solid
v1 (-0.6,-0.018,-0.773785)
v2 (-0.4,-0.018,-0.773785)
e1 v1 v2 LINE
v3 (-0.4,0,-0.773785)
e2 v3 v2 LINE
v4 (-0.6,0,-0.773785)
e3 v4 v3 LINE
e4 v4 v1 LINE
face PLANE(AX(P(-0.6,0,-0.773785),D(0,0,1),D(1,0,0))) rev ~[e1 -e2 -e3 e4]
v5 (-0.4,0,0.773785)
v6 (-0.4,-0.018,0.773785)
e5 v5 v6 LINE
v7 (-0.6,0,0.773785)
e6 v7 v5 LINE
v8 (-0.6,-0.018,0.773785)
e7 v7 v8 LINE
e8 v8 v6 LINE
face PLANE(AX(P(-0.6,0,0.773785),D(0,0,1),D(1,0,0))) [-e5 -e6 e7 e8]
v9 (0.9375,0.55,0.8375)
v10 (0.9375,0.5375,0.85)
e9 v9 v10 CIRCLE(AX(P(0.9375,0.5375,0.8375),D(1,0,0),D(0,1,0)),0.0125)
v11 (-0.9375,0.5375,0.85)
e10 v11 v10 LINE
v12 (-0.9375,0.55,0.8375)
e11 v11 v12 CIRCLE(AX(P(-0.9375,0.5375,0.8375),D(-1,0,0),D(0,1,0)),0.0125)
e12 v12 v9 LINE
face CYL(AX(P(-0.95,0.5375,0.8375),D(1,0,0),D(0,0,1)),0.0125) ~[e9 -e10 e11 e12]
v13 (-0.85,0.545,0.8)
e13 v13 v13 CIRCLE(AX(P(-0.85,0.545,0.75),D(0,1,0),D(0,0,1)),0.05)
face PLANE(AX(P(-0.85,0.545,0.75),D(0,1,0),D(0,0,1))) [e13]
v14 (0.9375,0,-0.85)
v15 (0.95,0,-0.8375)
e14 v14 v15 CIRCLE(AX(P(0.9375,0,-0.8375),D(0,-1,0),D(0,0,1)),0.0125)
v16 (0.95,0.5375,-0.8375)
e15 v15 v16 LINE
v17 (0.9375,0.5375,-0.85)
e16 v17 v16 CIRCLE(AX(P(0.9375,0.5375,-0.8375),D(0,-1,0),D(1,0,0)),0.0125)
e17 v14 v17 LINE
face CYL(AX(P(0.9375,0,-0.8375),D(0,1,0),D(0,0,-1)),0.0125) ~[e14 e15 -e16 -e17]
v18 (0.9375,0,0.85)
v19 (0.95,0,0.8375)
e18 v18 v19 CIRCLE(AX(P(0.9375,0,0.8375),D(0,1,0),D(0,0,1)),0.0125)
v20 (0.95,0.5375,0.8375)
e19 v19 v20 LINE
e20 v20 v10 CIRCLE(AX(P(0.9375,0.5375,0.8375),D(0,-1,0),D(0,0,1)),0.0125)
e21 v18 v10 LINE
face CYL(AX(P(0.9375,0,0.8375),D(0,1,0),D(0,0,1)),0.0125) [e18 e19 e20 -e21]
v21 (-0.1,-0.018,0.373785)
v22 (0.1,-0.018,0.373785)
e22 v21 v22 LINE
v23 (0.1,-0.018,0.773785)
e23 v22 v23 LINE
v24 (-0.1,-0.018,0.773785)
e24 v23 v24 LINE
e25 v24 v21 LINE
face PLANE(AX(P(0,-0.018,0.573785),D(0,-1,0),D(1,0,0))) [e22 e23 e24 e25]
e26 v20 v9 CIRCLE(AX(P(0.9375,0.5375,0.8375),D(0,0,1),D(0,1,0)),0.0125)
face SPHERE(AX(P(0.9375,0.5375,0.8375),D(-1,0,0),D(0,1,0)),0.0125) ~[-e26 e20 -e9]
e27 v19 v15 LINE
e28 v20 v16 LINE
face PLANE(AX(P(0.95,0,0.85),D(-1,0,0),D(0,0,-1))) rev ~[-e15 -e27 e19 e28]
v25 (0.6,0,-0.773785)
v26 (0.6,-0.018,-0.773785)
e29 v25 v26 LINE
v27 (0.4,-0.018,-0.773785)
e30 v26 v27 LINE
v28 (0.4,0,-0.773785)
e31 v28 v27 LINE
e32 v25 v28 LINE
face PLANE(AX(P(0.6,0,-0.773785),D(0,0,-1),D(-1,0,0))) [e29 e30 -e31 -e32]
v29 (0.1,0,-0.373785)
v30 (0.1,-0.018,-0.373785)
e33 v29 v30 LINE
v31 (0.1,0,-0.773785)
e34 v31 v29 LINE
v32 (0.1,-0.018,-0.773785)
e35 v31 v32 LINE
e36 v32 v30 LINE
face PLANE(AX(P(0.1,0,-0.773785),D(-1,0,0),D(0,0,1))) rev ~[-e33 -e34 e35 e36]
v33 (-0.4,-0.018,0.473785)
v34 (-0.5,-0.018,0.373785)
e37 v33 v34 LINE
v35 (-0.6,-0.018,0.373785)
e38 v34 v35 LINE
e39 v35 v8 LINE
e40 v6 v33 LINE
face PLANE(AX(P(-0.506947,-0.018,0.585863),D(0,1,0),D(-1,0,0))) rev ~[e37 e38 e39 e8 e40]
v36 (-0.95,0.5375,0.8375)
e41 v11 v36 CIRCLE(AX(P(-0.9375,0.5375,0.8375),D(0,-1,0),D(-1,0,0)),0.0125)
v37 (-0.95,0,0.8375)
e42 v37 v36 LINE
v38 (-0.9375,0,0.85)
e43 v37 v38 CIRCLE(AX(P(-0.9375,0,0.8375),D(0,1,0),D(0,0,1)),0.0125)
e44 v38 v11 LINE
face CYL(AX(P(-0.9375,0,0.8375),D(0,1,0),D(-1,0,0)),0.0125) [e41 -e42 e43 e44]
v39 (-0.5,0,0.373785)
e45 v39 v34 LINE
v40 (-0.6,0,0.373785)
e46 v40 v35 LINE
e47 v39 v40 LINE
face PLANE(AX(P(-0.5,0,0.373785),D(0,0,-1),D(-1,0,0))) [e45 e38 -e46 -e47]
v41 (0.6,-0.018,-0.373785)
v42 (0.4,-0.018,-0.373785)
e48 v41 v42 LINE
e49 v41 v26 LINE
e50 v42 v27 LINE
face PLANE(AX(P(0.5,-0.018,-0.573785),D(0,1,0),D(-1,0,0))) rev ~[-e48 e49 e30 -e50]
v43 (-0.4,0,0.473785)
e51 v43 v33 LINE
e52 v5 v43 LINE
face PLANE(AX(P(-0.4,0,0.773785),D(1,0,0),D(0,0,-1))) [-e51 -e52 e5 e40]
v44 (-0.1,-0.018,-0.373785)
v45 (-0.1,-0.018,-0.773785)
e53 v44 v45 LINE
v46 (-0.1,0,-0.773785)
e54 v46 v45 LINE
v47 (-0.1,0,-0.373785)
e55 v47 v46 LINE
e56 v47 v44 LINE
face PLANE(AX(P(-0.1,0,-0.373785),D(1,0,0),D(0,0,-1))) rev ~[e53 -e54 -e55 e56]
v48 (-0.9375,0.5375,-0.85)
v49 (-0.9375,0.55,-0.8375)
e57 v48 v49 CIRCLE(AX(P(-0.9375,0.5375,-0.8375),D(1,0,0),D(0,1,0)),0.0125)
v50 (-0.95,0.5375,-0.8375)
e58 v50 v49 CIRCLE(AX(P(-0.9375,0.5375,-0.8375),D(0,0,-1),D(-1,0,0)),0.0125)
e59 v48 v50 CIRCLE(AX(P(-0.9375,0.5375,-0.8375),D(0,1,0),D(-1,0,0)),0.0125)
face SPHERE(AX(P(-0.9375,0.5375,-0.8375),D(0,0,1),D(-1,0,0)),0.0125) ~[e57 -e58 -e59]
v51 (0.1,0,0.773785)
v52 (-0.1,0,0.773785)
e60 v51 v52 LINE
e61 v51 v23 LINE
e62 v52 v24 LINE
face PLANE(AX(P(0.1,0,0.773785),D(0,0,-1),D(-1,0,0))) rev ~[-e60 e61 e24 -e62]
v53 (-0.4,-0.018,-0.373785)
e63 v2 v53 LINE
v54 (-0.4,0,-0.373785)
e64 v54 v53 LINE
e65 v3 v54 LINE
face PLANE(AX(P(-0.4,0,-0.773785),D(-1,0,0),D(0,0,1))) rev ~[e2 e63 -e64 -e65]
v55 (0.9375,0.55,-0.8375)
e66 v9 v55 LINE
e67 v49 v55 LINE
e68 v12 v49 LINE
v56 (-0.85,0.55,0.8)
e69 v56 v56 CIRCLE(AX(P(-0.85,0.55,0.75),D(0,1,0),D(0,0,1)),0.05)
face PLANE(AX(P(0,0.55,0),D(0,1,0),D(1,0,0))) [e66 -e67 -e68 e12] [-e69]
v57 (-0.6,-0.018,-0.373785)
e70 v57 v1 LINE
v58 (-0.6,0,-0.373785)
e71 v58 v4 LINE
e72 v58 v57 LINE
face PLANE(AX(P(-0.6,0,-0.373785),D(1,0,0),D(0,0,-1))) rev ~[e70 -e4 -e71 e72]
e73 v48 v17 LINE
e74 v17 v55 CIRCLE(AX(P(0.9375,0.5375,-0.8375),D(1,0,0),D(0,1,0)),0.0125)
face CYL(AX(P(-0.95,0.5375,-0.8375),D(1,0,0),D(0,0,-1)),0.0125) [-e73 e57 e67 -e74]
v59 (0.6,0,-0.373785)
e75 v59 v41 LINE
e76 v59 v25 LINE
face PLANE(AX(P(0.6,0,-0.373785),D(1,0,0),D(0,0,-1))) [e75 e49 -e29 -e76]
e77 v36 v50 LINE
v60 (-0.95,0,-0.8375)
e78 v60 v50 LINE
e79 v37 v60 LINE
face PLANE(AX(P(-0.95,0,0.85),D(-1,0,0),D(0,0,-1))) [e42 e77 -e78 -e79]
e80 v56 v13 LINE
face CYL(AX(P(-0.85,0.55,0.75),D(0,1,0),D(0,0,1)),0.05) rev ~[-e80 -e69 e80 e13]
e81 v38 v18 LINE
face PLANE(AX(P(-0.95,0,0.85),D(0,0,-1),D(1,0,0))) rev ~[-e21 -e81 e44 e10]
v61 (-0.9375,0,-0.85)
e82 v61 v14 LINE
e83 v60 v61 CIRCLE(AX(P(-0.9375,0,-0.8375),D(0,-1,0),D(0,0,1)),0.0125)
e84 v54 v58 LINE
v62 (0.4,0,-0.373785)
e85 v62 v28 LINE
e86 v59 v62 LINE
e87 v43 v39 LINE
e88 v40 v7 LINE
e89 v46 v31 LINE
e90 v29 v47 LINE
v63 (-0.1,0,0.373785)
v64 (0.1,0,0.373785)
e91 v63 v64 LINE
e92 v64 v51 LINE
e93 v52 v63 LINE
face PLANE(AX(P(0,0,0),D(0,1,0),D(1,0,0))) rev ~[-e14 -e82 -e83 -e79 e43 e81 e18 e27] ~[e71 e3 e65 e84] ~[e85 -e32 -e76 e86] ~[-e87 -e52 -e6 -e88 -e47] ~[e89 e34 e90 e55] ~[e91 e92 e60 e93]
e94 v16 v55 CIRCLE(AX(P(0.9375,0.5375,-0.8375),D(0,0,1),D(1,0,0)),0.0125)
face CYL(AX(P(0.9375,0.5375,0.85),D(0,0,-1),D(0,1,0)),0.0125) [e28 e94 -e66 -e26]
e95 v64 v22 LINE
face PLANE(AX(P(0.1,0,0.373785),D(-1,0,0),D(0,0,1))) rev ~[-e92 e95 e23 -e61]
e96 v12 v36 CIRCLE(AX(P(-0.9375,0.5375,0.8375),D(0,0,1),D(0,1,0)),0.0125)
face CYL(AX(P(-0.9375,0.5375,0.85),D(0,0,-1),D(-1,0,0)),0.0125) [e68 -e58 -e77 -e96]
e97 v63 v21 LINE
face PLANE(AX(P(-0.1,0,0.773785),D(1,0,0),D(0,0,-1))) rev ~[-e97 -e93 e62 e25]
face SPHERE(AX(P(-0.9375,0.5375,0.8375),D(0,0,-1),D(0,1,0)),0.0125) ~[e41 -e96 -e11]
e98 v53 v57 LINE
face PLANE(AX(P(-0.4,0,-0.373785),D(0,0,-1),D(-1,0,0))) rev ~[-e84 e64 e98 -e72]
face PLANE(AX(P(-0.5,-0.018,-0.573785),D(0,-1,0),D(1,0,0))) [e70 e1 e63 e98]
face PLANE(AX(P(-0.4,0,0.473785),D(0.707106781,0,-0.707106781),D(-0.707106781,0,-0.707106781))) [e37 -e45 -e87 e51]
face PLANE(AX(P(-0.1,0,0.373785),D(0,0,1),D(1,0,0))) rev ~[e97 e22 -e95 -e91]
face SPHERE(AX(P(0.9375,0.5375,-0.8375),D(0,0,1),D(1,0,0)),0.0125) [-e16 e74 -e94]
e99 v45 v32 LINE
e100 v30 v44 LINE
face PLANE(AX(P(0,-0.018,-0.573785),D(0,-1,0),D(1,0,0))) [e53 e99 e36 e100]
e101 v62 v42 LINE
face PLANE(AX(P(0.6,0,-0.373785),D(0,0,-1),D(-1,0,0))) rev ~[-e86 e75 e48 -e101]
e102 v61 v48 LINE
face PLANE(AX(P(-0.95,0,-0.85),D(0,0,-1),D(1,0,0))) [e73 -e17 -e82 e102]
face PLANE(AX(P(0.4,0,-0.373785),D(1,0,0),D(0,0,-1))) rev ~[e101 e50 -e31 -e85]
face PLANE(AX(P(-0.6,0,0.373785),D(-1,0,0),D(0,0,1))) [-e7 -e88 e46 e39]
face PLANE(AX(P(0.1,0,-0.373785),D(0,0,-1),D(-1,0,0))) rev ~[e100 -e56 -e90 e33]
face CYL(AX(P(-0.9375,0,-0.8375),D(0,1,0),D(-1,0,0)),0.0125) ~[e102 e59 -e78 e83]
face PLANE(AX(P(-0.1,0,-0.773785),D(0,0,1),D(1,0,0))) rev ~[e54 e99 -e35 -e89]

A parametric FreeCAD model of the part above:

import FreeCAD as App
import Part
import Sketcher
from FreeCAD import Vector
Q = App.Units.Quantity


def edges_at(feature, points):
    """Names of the edges that pass closest to the given points."""
    edges = feature.Shape.Edges
    near = lambda p: min(range(len(edges)), key=lambda i: edges[i].distToShape(Part.Vertex(*p))[0])
    return sorted({f"Edge{near(p) + 1}" for p in points})


def add_polygon(sketch, points):
    """Adds a closed chain of lines whose ends are joined by coincident constraints."""
    first, n = sketch.GeometryCount, len(points)
    for a, b in zip(points, points[1:] + points[:1]):
        sketch.addGeometry(Part.LineSegment(App.Vector(*a, 0), App.Vector(*b, 0)), False)
    for i in range(n):
        sketch.addConstraint(Sketcher.Constraint("Coincident", first + i, 2, first + (i + 1) % n, 1))

doc = App.newDocument("Part")
body = doc.addObject("PartDesign::Body", "Body")

sketch1 = doc.addObject("Sketcher::SketchObject", "Sketch")
body.addObject(sketch1)
sketch1.AttachmentSupport = (doc.XZ_Plane, [""])
sketch1.MapMode = "FlatFace"
add_polygon(sketch1, [(-0.9, -0.8), (-0.9, 0.8), (0.9, 0.8), (0.9, -0.8)])
sketch1.addConstraint(Sketcher.Constraint("Vertical", 0))
sketch1.addConstraint(Sketcher.Constraint("Horizontal", 1))
sketch1.addConstraint(Sketcher.Constraint("Vertical", 2))
sketch1.addConstraint(Sketcher.Constraint("Horizontal", 3))
sketch1.addConstraint(Sketcher.Constraint("Symmetric", 0, 2, 2, 2, -1, 1))
sketch1.addConstraint(Sketcher.Constraint("DistanceX", 1, 1, 1, 2, 1.9))
sketch1.addConstraint(Sketcher.Constraint("DistanceY", 0, 1, 0, 2, 1.7))
pad1 = doc.addObject("PartDesign::Pad", "Pad")
body.addObject(pad1)
pad1.Profile = sketch1
pad1.Length = 0.55
pad1.Reversed = True

sketch2 = doc.addObject("Sketcher::SketchObject", "Sketch001")
body.addObject(sketch2)
sketch2.AttachmentSupport = (doc.XZ_Plane, [""])
sketch2.MapMode = "FlatFace"
sketch2.AttachmentOffset = App.Placement(Vector(0, 0, -0.55), App.Rotation())
sketch2.addGeometry(Part.Circle(Vector(-0.85, 0.75, 0), Vector(0, 0, 1), 0.05), False)
sketch2.addConstraint(Sketcher.Constraint("Diameter", 0, 0.1))
sketch2.addConstraint(Sketcher.Constraint("DistanceX", 0, 3, -1, 1, 0.85))
sketch2.addConstraint(Sketcher.Constraint("DistanceY", -1, 1, 0, 3, 0.75))
pocket1 = doc.addObject("PartDesign::Pocket", "Pocket")
body.addObject(pocket1)
pocket1.Profile = sketch2
pocket1.Length = 0.005
pocket1.Reversed = True

sketch3 = doc.addObject("Sketcher::SketchObject", "Sketch002")
body.addObject(sketch3)
sketch3.AttachmentSupport = (doc.XZ_Plane, [""])
sketch3.MapMode = "FlatFace"
add_polygon(sketch3, [(-0.5, 0.37), (-0.4, 0.47), (-0.4, 0.77), (-0.6, 0.77), (-0.6, 0.37)])
add_polygon(sketch3, [(0.1, 0.37), (0.1, 0.77), (-0.1, 0.77), (-0.1, 0.37)])
add_polygon(sketch3, [(-0.6, -0.37), (-0.6, -0.77), (-0.4, -0.77), (-0.4, -0.37)])
add_polygon(sketch3, [(-0.1, -0.37), (-0.1, -0.77), (0.1, -0.77), (0.1, -0.37)])
add_polygon(sketch3, [(0.4, -0.77), (0.6, -0.77), (0.6, -0.37), (0.4, -0.37)])
sketch3.addConstraint(Sketcher.Constraint("Vertical", 1))
sketch3.addConstraint(Sketcher.Constraint("Horizontal", 2))
sketch3.addConstraint(Sketcher.Constraint("Vertical", 3))
sketch3.addConstraint(Sketcher.Constraint("Horizontal", 4))
sketch3.addConstraint(Sketcher.Constraint("Vertical", 5))
sketch3.addConstraint(Sketcher.Constraint("Horizontal", 6))
sketch3.addConstraint(Sketcher.Constraint("Vertical", 7))
sketch3.addConstraint(Sketcher.Constraint("Horizontal", 8))
sketch3.addConstraint(Sketcher.Constraint("Vertical", 9))
sketch3.addConstraint(Sketcher.Constraint("Horizontal", 10))
sketch3.addConstraint(Sketcher.Constraint("Vertical", 11))
sketch3.addConstraint(Sketcher.Constraint("Horizontal", 12))
sketch3.addConstraint(Sketcher.Constraint("Vertical", 13))
sketch3.addConstraint(Sketcher.Constraint("Horizontal", 14))
sketch3.addConstraint(Sketcher.Constraint("Vertical", 15))
sketch3.addConstraint(Sketcher.Constraint("Horizontal", 16))
sketch3.addConstraint(Sketcher.Constraint("Horizontal", 17))
sketch3.addConstraint(Sketcher.Constraint("Vertical", 18))
sketch3.addConstraint(Sketcher.Constraint("Horizontal", 19))
sketch3.addConstraint(Sketcher.Constraint("Vertical", 20))
sketch3.addConstraint(Sketcher.Constraint("Symmetric", 5, 2, 13, 2, -1, 1))
sketch3.addConstraint(Sketcher.Constraint("Symmetric", 7, 2, 15, 2, -1, 1))
sketch3.addConstraint(Sketcher.Constraint("Symmetric", 2, 2, 17, 2, -1, 1))
sketch3.addConstraint(Sketcher.Constraint("Symmetric", 9, 2, 17, 2, -2))
sketch3.addConstraint(Sketcher.Constraint("Symmetric", 11, 2, 19, 2, -2))
sketch3.addConstraint(Sketcher.Constraint("Horizontal", 2, 2, 5, 2))
sketch3.addConstraint(Sketcher.Constraint("Horizontal", 4, 2, 7, 2))
sketch3.addConstraint(Sketcher.Constraint("Horizontal", 12, 2, 15, 2))
sketch3.addConstraint(Sketcher.Constraint("Vertical", 1, 2, 10, 2))
sketch3.addConstraint(Sketcher.Constraint("Vertical", 7, 2, 13, 2))
sketch3.addConstraint(Sketcher.Constraint("Equal", 2, 6))
sketch3.addConstraint(Sketcher.Constraint("Angle", 0, Q("45 deg")))
sketch3.addConstraint(Sketcher.Constraint("DistanceX", 2, 2, 2, 1, 0.2))
sketch3.addConstraint(Sketcher.Constraint("DistanceX", 4, 1, 4, 2, 0.1))
sketch3.addConstraint(Sketcher.Constraint("DistanceY", 1, 1, 1, 2, 0.3))
sketch3.addConstraint(Sketcher.Constraint("DistanceX", 10, 2, 17, 2, 1.0))
sketch3.addConstraint(Sketcher.Constraint("DistanceY", 9, 2, 3, 2, 1.14757))
pad2 = doc.addObject("PartDesign::Pad", "Pad001")
body.addObject(pad2)
pad2.Profile = sketch3
pad2.Length = 0.018
doc.recompute()

fillet = doc.addObject("PartDesign::Fillet", "Fillet")
body.addObject(fillet)
fillet.Base = (pad2, edges_at(pad2, [
    (-0.95, 0.55, 0),
    (0, 0.55, 0.85),
    (0.95, 0.55, 0),
    (0.95, 0.275, 0.85),
    (-0.95, 0.275, 0.85),
    (-0.95, 0.275, -0.85),
    (0.95, 0.275, -0.85),
    (0, 0.55, -0.85),
]))
fillet.Radius = 0.0125

doc.recompute()
